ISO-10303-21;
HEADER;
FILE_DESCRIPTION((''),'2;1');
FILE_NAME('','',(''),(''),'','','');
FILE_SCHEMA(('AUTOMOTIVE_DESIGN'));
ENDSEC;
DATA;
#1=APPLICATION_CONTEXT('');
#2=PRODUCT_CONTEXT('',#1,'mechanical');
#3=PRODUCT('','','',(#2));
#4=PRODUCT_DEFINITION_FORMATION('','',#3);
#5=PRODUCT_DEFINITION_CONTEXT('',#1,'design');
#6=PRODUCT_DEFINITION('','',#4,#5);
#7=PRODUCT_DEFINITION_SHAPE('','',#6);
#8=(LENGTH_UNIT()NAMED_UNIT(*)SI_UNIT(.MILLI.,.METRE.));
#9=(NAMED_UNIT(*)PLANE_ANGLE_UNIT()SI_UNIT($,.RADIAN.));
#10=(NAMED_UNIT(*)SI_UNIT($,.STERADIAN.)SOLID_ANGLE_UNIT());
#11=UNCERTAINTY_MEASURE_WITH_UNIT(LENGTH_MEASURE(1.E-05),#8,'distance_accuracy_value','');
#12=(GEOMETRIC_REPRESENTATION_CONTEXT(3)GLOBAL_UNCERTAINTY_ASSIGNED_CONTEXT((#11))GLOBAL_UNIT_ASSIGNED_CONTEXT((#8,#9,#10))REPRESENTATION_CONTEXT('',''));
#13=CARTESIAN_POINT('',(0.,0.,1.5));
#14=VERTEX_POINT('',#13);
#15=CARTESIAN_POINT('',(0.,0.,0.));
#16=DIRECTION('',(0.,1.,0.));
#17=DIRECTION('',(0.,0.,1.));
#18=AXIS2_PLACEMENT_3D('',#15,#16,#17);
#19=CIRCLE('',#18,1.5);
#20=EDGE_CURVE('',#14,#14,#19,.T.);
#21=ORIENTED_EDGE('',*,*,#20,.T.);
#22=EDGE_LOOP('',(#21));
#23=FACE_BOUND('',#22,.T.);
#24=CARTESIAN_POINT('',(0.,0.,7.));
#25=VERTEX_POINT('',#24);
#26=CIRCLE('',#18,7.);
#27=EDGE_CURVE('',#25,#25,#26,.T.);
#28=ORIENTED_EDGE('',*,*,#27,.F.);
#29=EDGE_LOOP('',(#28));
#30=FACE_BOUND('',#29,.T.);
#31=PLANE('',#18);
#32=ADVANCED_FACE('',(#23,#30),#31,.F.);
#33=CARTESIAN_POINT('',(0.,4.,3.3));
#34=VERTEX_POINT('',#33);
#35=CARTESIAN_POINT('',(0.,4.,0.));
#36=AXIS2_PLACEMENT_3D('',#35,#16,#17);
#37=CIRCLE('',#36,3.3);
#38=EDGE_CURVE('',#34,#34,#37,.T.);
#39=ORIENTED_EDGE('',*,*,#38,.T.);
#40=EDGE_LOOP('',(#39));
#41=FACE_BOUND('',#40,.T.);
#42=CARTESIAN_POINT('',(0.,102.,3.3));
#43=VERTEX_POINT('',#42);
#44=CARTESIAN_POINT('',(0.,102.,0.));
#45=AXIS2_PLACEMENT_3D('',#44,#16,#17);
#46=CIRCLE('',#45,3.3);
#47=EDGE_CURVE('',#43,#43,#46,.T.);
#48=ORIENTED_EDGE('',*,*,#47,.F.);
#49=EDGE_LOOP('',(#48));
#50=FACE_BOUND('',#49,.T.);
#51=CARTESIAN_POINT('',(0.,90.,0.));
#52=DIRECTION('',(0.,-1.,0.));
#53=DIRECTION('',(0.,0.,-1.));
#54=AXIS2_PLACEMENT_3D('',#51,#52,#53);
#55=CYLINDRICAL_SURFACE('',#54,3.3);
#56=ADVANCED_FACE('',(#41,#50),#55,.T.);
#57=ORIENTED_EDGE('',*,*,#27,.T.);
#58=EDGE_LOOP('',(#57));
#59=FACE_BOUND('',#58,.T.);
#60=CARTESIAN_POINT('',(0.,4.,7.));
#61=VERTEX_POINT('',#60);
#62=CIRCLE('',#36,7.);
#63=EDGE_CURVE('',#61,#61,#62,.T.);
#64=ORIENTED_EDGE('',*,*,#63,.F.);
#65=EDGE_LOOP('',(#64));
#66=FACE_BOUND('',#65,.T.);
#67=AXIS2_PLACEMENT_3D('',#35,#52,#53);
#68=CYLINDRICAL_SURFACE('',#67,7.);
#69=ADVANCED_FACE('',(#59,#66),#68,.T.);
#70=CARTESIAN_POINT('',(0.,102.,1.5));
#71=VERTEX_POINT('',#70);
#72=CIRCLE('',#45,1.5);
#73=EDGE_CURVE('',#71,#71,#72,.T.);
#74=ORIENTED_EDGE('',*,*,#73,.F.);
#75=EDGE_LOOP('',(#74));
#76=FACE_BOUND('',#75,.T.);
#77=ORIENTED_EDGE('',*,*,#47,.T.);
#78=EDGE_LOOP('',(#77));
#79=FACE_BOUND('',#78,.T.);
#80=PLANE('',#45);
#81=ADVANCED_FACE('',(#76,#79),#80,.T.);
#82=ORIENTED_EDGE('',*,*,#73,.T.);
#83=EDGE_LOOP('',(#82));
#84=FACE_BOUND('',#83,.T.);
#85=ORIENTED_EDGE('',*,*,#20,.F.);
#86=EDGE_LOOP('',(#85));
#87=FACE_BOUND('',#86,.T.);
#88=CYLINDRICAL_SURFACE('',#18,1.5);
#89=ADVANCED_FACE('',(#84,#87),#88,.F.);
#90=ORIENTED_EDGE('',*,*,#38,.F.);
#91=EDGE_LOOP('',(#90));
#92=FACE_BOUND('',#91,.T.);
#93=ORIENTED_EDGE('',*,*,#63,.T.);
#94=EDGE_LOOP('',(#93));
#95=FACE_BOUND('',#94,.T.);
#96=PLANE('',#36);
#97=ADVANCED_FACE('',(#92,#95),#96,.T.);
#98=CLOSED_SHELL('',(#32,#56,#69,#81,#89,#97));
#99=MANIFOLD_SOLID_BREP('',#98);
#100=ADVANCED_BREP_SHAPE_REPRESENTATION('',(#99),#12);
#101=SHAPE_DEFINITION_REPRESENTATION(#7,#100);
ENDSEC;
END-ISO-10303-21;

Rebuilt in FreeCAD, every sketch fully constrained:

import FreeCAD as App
import Part
import Sketcher

V = App.Vector

doc = App.newDocument("Part")
body = doc.addObject("PartDesign::Body", "Body")

# Sketch on XZ plane
sketch1 = doc.addObject("Sketcher::SketchObject", "Sketch")
body.addObject(sketch1)
sketch1.AttachmentSupport = (doc.XZ_Plane, [""])
sketch1.MapMode = "FlatFace"
sketch1.addGeometry(Part.Circle(V(0, 0, 0), V(0, 0, 1), 7), False)
sketch1.addConstraint([
    Sketcher.Constraint("Coincident", 0, 3, -1, 1),
    Sketcher.Constraint("Diameter", 0, 14.0),
])
pad1 = doc.addObject("PartDesign::Pad", "Pad")
body.addObject(pad1)
pad1.Profile = sketch1
pad1.Length = 4
pad1.Reversed = True

# Sketch on XZ plane
sketch2 = doc.addObject("Sketcher::SketchObject", "Sketch001")
body.addObject(sketch2)
sketch2.AttachmentSupport = (doc.XZ_Plane, [""])
sketch2.MapMode = "FlatFace"
sketch2.AttachmentOffset = App.Placement(V(0, 0, -4), App.Rotation())
sketch2.addGeometry(Part.Circle(V(0, 0, 0), V(0, 0, 1), 3.3), False)
sketch2.addConstraint([
    Sketcher.Constraint("Coincident", 0, 3, -1, 1),
    Sketcher.Constraint("Diameter", 0, 6.6),
])
pad2 = doc.addObject("PartDesign::Pad", "Pad001")
body.addObject(pad2)
pad2.Profile = sketch2
pad2.Length = 86
pad2.Reversed = True

# Sketch on XZ plane
sketch3 = doc.addObject("Sketcher::SketchObject", "Sketch002")
body.addObject(sketch3)
sketch3.AttachmentSupport = (doc.XZ_Plane, [""])
sketch3.MapMode = "FlatFace"
sketch3.AttachmentOffset = App.Placement(V(0, 0, -90), App.Rotation())
sketch3.addGeometry(Part.Circle(V(0, 0, 0), V(0, 0, 1), 3.3), False)
sketch3.addConstraint([
    Sketcher.Constraint("Coincident", 0, 3, -1, 1),
    Sketcher.Constraint("Diameter", 0, 6.6),
])
pad3 = doc.addObject("PartDesign::Pad", "Pad002")
body.addObject(pad3)
pad3.Profile = sketch3
pad3.Length = 12
pad3.Reversed = True

# Sketch on XZ plane
sketch4 = doc.addObject("Sketcher::SketchObject", "Sketch003")
body.addObject(sketch4)
sketch4.AttachmentSupport = (doc.XZ_Plane, [""])
sketch4.MapMode = "FlatFace"
sketch4.AttachmentOffset = App.Placement(V(0, 0, -102), App.Rotation())
sketch4.addGeometry(Part.Circle(V(0, 0, 0), V(0, 0, 1), 1.5), False)
sketch4.addConstraint([
    Sketcher.Constraint("Coincident", 0, 3, -1, 1),
    Sketcher.Constraint("Diameter", 0, 3.0),
])
pocket1 = doc.addObject("PartDesign::Pocket", "Pocket")
body.addObject(pocket1)
pocket1.Profile = sketch4
pocket1.Type = "ThroughAll"
pocket1.Reversed = True

doc.recompute()
